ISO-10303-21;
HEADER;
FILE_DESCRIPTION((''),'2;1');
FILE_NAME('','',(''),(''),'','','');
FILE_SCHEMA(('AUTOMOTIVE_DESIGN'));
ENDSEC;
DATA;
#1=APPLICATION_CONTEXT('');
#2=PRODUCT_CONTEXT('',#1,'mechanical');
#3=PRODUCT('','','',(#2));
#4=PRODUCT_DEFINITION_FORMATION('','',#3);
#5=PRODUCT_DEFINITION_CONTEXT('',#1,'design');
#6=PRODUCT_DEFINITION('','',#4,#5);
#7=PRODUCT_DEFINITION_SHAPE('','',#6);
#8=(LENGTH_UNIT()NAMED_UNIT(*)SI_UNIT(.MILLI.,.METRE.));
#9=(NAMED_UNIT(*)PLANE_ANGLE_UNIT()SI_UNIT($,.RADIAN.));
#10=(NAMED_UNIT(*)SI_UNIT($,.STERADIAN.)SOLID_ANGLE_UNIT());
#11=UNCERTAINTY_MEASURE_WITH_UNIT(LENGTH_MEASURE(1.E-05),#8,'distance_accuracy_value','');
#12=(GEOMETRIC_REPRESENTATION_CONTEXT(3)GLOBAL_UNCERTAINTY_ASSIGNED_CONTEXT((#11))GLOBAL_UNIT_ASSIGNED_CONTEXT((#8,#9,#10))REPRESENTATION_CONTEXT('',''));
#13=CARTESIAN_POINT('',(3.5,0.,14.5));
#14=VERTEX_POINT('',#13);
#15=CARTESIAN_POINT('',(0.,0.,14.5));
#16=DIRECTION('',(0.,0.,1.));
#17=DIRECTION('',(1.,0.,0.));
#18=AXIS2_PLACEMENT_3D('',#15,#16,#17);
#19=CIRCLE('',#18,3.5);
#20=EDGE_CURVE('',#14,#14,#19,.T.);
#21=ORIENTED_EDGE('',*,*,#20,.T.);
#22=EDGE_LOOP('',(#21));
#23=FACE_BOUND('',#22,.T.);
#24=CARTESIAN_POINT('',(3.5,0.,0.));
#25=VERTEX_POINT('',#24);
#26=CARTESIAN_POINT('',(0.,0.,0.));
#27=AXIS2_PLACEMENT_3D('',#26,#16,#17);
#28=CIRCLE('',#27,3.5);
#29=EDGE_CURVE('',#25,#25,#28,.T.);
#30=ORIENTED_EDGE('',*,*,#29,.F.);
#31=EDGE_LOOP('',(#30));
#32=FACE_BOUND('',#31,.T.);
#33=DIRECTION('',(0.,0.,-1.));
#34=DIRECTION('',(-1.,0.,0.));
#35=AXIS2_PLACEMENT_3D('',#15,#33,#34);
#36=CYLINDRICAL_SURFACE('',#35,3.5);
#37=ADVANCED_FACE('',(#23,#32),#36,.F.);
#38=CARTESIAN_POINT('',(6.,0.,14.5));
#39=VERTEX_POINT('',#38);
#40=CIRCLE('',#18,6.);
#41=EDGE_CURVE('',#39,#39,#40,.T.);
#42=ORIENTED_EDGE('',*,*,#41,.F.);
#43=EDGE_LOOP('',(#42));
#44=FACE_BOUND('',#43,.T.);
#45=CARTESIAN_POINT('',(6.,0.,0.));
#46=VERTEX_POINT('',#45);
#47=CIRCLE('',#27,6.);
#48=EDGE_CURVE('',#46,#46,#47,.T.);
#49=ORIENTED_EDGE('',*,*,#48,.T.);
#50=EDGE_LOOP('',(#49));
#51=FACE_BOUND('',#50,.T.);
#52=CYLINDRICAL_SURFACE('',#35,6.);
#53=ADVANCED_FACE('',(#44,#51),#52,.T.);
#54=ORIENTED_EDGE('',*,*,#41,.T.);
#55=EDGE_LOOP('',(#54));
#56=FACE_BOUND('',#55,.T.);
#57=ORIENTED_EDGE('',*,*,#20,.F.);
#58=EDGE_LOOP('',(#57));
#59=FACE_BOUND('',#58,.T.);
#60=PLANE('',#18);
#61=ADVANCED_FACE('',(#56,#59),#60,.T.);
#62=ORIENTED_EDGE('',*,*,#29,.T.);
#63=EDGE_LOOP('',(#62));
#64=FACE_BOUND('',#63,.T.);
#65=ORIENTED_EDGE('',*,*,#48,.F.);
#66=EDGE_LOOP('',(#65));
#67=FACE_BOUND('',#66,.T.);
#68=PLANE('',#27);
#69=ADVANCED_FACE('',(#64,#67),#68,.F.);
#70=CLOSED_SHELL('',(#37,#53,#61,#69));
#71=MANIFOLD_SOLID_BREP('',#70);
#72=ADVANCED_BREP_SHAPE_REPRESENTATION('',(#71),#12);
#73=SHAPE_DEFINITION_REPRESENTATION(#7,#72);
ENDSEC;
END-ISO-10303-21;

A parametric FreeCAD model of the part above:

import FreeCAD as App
import Part
import Sketcher
from FreeCAD import Vector
Q = App.Units.Quantity

doc = App.newDocument("Part")
body = doc.addObject("PartDesign::Body", "Body")

sketch1 = doc.addObject("Sketcher::SketchObject", "Sketch")
body.addObject(sketch1)
sketch1.AttachmentSupport = (doc.XY_Plane, [""])
sketch1.MapMode = "FlatFace"
sketch1.addGeometry(Part.Circle(Vector(0, 0, 0), Vector(0, 0, 1), 6), False)
sketch1.addGeometry(Part.Circle(Vector(0, 0, 0), Vector(0, 0, 1), 3.5), False)
sketch1.addConstraint(Sketcher.Constraint("Coincident", 0, 3, -1, 1))
sketch1.addConstraint(Sketcher.Constraint("Coincident", 1, 3, -1, 1))
sketch1.addConstraint(Sketcher.Constraint("Diameter", 0, Q("12 mm")))
sketch1.addConstraint(Sketcher.Constraint("Diameter", 1, Q("7 mm")))
pad1 = doc.addObject("PartDesign::Pad", "Pad")
body.addObject(pad1)
pad1.Profile = sketch1
pad1.Length = 14.5

doc.recompute()
